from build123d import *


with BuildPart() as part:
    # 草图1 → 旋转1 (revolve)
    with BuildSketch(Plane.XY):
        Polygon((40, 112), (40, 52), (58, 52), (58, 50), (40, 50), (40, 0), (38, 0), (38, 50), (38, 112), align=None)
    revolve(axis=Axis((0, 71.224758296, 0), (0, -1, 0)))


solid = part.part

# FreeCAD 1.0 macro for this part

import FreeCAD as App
import Part
import Sketcher

V = App.Vector
Q = App.Units.Quantity


def add_polygon(sketch, points):
    """Adds a closed chain of lines whose ends are joined by coincident constraints."""
    first, n = sketch.GeometryCount, len(points)
    for a, b in zip(points, points[1:] + points[:1]):
        sketch.addGeometry(Part.LineSegment(App.Vector(*a, 0), App.Vector(*b, 0)), False)
    for i in range(n):
        sketch.addConstraint(Sketcher.Constraint("Coincident", first + i, 2, first + (i + 1) % n, 1))

doc = App.newDocument("Part")
body = doc.addObject("PartDesign::Body", "Body")

# Sketch on XY plane
sketch1 = body.newObject("Sketcher::SketchObject", "Sketch")
sketch1.AttachmentSupport = (doc.getObject("XY_Plane"), [""])
sketch1.MapMode = "FlatFace"
add_polygon(sketch1, [(40, 52), (40, 112), (38, 112), (38, 0), (40, 0), (40, 50), (58, 50), (58, 52)])  # lines 0-7
sketch1.addConstraint([
    Sketcher.Constraint("Vertical", 0),
    Sketcher.Constraint("Horizontal", 1),
    Sketcher.Constraint("Vertical", 2),
    Sketcher.Constraint("Horizontal", 3),
    Sketcher.Constraint("Vertical", 4),
    Sketcher.Constraint("Horizontal", 5),
    Sketcher.Constraint("Vertical", 6),
    Sketcher.Constraint("Horizontal", 7),
    Sketcher.Constraint("PointOnObject", 2, 2, -1),
    Sketcher.Constraint("Vertical", 0, 2, 3, 2),
    Sketcher.Constraint("Equal", 3, 6),
    Sketcher.Constraint("DistanceX", 1, 2, 1, 1, Q("2 mm")),
    Sketcher.Constraint("DistanceX", 5, 1, 5, 2, Q("18 mm")),
    Sketcher.Constraint("DistanceY", 0, 1, 0, 2, Q("60 mm")),
    Sketcher.Constraint("DistanceY", 2, 2, 2, 1, Q("112 mm")),
    Sketcher.Constraint("DistanceX", -1, 1, 0, 2, Q("40 mm")),
])
revolution = body.newObject("PartDesign::Revolution", "Revolution")
revolution.Profile = sketch1
revolution.ReferenceAxis = (sketch1, ["V_Axis"])
revolution.Angle = 360

doc.recompute()
